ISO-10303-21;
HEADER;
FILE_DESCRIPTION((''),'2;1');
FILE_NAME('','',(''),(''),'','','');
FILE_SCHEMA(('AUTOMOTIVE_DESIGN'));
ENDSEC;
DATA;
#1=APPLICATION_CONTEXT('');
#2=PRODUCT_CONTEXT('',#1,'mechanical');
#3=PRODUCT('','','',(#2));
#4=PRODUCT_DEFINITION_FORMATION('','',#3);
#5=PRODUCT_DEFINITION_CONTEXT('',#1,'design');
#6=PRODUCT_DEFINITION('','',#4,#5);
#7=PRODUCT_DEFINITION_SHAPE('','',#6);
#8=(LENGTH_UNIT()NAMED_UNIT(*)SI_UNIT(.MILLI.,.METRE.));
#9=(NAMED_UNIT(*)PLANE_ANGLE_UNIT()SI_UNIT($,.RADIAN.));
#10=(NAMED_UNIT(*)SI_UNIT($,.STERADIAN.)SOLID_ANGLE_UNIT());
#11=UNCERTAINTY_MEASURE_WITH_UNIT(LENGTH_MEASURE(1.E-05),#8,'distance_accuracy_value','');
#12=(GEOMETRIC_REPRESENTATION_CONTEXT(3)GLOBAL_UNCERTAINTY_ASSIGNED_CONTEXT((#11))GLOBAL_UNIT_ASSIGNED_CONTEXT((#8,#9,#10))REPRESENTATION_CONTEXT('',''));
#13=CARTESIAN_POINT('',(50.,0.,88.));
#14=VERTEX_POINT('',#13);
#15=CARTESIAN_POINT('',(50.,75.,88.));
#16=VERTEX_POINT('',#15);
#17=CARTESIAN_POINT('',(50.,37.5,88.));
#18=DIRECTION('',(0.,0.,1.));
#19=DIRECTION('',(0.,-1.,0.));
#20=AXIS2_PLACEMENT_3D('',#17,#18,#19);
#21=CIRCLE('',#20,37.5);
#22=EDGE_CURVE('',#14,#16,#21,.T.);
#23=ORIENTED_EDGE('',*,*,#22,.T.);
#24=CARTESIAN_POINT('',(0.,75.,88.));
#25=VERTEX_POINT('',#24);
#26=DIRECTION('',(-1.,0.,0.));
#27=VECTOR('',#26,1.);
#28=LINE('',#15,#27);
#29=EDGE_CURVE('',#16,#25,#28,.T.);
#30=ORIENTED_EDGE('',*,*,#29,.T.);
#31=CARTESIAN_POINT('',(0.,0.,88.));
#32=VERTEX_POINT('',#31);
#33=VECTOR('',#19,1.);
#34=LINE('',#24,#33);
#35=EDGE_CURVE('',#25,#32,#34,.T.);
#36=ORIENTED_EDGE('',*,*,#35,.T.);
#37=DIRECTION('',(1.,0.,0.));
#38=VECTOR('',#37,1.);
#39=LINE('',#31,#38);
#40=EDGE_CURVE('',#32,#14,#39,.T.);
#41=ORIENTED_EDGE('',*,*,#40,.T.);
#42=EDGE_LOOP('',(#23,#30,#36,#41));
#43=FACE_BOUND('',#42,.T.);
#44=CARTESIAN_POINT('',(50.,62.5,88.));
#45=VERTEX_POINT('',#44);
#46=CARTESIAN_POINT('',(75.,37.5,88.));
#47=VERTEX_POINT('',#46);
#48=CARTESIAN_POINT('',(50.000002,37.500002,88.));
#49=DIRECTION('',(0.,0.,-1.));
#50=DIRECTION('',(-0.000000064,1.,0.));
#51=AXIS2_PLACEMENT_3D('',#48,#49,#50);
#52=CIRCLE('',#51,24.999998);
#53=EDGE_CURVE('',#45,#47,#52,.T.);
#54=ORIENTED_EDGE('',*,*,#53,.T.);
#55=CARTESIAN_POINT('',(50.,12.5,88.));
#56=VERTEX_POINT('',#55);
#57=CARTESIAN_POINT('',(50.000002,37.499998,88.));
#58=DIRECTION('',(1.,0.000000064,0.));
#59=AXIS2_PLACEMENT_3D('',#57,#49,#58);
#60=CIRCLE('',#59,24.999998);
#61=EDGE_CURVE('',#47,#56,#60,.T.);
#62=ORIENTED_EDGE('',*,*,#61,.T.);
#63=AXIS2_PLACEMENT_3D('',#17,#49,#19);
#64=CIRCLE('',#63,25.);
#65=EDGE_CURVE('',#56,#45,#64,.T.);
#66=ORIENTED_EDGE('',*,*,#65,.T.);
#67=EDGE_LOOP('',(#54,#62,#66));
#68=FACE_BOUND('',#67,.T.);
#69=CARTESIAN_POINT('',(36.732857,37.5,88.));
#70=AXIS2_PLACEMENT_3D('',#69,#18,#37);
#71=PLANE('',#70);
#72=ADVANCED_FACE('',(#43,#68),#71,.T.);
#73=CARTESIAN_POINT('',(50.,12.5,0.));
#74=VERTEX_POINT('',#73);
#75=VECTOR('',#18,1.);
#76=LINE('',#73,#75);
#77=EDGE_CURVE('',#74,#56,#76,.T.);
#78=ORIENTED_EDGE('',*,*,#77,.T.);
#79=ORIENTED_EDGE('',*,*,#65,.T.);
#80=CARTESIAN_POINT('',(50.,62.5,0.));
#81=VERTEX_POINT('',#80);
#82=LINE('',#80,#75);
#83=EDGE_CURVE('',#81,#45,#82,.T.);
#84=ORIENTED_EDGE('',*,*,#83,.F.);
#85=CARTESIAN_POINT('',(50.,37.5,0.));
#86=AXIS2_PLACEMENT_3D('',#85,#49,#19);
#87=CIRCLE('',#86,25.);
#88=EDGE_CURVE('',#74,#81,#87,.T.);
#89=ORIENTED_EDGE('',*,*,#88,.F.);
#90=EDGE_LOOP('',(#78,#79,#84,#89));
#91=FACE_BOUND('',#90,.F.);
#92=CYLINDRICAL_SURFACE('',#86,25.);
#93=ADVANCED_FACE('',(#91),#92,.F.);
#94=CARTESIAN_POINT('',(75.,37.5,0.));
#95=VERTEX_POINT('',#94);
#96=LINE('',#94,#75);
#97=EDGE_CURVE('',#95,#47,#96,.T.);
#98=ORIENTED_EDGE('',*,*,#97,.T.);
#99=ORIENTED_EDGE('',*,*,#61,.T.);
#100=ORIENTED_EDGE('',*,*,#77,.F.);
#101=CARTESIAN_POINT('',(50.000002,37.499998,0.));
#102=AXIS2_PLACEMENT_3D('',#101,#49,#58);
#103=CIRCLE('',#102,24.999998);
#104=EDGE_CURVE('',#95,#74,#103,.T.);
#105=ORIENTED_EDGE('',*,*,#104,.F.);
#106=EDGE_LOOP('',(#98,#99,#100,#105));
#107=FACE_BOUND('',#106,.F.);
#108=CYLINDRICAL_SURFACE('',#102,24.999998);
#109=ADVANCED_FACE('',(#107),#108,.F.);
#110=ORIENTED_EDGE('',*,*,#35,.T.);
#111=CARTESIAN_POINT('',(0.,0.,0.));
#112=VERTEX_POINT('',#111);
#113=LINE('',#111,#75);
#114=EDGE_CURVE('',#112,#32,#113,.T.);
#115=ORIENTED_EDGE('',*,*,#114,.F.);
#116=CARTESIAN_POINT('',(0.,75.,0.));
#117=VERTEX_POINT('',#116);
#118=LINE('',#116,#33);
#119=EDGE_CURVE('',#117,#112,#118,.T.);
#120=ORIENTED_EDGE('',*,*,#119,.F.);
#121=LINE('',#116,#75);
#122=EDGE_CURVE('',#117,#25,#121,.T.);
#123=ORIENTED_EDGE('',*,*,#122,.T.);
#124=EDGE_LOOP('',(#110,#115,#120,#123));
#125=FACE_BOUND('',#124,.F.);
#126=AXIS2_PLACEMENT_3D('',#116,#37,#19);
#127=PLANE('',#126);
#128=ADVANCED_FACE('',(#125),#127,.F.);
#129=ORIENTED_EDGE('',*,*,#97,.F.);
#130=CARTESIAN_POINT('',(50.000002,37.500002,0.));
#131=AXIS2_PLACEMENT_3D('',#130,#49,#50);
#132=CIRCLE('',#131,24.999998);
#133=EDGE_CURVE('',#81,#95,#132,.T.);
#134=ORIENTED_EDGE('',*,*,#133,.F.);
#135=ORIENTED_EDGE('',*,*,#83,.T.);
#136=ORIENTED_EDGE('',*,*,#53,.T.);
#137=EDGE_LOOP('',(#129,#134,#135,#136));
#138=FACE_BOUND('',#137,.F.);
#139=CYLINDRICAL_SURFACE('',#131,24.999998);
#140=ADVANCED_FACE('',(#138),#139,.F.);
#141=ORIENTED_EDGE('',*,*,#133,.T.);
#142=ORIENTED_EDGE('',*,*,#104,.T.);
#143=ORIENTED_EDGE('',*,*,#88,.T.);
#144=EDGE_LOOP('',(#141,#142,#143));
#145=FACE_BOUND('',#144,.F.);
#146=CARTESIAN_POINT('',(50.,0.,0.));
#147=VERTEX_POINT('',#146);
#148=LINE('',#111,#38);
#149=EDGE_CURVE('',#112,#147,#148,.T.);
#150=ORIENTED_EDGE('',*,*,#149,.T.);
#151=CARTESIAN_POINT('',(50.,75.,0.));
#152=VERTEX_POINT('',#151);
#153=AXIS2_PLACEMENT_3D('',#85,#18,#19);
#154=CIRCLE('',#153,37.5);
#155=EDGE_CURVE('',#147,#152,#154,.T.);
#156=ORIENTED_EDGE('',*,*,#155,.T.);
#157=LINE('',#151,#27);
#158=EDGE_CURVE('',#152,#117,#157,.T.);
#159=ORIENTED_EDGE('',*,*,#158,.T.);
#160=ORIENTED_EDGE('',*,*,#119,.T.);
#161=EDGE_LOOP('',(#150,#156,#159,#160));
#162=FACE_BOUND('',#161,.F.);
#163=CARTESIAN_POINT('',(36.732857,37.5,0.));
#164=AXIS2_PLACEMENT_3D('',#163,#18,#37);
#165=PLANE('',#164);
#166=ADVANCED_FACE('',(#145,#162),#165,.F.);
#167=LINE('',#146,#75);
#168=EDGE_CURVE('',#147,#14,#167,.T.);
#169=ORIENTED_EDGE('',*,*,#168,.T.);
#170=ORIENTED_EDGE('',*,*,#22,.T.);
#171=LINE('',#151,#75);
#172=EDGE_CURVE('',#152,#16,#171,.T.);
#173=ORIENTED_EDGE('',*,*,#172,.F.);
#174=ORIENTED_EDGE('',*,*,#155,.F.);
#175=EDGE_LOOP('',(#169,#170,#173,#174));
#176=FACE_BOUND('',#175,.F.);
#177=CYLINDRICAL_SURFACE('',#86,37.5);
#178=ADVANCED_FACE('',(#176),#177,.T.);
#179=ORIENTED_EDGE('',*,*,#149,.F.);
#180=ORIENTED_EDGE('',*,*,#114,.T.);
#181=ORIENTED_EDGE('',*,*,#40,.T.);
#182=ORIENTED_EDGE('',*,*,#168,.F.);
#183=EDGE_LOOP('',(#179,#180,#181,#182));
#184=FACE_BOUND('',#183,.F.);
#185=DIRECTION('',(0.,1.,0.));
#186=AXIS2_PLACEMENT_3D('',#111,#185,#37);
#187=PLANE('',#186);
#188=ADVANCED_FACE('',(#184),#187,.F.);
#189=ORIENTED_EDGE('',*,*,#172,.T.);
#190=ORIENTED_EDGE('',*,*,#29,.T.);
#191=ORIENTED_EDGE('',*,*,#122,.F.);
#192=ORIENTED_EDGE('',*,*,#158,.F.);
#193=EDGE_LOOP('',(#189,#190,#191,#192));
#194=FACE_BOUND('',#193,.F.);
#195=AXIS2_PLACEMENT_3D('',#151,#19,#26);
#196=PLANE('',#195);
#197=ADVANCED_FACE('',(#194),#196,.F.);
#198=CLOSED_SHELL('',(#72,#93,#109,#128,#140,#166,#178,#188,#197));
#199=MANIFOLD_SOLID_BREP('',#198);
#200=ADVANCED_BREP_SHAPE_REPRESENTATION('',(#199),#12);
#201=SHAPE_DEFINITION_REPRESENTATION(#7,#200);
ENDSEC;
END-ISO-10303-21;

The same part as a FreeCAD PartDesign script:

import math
import FreeCAD as App
import Part
import Sketcher
from FreeCAD import Vector

doc = App.newDocument("Part")
body = doc.addObject("PartDesign::Body", "Body")

sketch1 = body.newObject("Sketcher::SketchObject", "Sketch")
sketch1.AttachmentSupport = (doc.getObject("XY_Plane"), [""])
sketch1.MapMode = "FlatFace"
sketch1.addGeometry(Part.LineSegment(Vector(0, 75, 0), Vector(0, 0, 0)), False)
sketch1.addGeometry(Part.LineSegment(Vector(0, 0, 0), Vector(50, 0, 0)), False)
sketch1.addGeometry(Part.ArcOfCircle(Part.Circle(Vector(50, 38, 0), Vector(0, 0, 1), 38), math.radians(-90), math.radians(90)), False)
sketch1.addGeometry(Part.LineSegment(Vector(50, 75, 0), Vector(0, 75, 0)), False)
sketch1.addGeometry(Part.ArcOfCircle(Part.Circle(Vector(50, 38, 0), Vector(0, 0, 1), 25), math.radians(0), math.radians(90)), False)
sketch1.addGeometry(Part.ArcOfCircle(Part.Circle(Vector(50, 37, 0), Vector(0, 0, 1), 25), math.radians(-90), math.radians(0)), False)
sketch1.addGeometry(Part.ArcOfCircle(Part.Circle(Vector(50, 38, 0), Vector(0, 0, 1), 25), math.radians(90), math.radians(270)), False)
sketch1.addConstraint(Sketcher.Constraint("Coincident", 0, 2, 1, 1))
sketch1.addConstraint(Sketcher.Constraint("Tangent", 1, 2, 2, 1))
sketch1.addConstraint(Sketcher.Constraint("Tangent", 2, 2, 3, 1))
sketch1.addConstraint(Sketcher.Constraint("Coincident", 3, 2, 0, 1))
sketch1.addConstraint(Sketcher.Constraint("Tangent", 4, 1, 5, 2))
sketch1.addConstraint(Sketcher.Constraint("Tangent", 5, 1, 6, 2))
sketch1.addConstraint(Sketcher.Constraint("Tangent", 6, 1, 4, 2))
sketch1.addConstraint(Sketcher.Constraint("Vertical", 0))
sketch1.addConstraint(Sketcher.Constraint("Horizontal", 1))
sketch1.addConstraint(Sketcher.Constraint("Horizontal", 3))
sketch1.addConstraint(Sketcher.Constraint("Coincident", 0, 2, -1, 1))
sketch1.addConstraint(Sketcher.Constraint("Coincident", 4, 3, 2, 3))
sketch1.addConstraint(Sketcher.Constraint("Horizontal", 6, 3, 4, 1))
sketch1.addConstraint(Sketcher.Constraint("Vertical", 2, 2, 5, 1))
sketch1.addConstraint(Sketcher.Constraint("Vertical", 5, 1, 6, 1))
sketch1.addConstraint(Sketcher.Constraint("Radius", 4, 24.999998))
sketch1.addConstraint(Sketcher.Constraint("Radius", 2, 37.5))
sketch1.addConstraint(Sketcher.Constraint("DistanceX", 1, 1, 1, 2, 50.0))
pad1 = body.newObject("PartDesign::Pad", "Pad")
pad1.Profile = sketch1
pad1.Length = 88

doc.recompute()
